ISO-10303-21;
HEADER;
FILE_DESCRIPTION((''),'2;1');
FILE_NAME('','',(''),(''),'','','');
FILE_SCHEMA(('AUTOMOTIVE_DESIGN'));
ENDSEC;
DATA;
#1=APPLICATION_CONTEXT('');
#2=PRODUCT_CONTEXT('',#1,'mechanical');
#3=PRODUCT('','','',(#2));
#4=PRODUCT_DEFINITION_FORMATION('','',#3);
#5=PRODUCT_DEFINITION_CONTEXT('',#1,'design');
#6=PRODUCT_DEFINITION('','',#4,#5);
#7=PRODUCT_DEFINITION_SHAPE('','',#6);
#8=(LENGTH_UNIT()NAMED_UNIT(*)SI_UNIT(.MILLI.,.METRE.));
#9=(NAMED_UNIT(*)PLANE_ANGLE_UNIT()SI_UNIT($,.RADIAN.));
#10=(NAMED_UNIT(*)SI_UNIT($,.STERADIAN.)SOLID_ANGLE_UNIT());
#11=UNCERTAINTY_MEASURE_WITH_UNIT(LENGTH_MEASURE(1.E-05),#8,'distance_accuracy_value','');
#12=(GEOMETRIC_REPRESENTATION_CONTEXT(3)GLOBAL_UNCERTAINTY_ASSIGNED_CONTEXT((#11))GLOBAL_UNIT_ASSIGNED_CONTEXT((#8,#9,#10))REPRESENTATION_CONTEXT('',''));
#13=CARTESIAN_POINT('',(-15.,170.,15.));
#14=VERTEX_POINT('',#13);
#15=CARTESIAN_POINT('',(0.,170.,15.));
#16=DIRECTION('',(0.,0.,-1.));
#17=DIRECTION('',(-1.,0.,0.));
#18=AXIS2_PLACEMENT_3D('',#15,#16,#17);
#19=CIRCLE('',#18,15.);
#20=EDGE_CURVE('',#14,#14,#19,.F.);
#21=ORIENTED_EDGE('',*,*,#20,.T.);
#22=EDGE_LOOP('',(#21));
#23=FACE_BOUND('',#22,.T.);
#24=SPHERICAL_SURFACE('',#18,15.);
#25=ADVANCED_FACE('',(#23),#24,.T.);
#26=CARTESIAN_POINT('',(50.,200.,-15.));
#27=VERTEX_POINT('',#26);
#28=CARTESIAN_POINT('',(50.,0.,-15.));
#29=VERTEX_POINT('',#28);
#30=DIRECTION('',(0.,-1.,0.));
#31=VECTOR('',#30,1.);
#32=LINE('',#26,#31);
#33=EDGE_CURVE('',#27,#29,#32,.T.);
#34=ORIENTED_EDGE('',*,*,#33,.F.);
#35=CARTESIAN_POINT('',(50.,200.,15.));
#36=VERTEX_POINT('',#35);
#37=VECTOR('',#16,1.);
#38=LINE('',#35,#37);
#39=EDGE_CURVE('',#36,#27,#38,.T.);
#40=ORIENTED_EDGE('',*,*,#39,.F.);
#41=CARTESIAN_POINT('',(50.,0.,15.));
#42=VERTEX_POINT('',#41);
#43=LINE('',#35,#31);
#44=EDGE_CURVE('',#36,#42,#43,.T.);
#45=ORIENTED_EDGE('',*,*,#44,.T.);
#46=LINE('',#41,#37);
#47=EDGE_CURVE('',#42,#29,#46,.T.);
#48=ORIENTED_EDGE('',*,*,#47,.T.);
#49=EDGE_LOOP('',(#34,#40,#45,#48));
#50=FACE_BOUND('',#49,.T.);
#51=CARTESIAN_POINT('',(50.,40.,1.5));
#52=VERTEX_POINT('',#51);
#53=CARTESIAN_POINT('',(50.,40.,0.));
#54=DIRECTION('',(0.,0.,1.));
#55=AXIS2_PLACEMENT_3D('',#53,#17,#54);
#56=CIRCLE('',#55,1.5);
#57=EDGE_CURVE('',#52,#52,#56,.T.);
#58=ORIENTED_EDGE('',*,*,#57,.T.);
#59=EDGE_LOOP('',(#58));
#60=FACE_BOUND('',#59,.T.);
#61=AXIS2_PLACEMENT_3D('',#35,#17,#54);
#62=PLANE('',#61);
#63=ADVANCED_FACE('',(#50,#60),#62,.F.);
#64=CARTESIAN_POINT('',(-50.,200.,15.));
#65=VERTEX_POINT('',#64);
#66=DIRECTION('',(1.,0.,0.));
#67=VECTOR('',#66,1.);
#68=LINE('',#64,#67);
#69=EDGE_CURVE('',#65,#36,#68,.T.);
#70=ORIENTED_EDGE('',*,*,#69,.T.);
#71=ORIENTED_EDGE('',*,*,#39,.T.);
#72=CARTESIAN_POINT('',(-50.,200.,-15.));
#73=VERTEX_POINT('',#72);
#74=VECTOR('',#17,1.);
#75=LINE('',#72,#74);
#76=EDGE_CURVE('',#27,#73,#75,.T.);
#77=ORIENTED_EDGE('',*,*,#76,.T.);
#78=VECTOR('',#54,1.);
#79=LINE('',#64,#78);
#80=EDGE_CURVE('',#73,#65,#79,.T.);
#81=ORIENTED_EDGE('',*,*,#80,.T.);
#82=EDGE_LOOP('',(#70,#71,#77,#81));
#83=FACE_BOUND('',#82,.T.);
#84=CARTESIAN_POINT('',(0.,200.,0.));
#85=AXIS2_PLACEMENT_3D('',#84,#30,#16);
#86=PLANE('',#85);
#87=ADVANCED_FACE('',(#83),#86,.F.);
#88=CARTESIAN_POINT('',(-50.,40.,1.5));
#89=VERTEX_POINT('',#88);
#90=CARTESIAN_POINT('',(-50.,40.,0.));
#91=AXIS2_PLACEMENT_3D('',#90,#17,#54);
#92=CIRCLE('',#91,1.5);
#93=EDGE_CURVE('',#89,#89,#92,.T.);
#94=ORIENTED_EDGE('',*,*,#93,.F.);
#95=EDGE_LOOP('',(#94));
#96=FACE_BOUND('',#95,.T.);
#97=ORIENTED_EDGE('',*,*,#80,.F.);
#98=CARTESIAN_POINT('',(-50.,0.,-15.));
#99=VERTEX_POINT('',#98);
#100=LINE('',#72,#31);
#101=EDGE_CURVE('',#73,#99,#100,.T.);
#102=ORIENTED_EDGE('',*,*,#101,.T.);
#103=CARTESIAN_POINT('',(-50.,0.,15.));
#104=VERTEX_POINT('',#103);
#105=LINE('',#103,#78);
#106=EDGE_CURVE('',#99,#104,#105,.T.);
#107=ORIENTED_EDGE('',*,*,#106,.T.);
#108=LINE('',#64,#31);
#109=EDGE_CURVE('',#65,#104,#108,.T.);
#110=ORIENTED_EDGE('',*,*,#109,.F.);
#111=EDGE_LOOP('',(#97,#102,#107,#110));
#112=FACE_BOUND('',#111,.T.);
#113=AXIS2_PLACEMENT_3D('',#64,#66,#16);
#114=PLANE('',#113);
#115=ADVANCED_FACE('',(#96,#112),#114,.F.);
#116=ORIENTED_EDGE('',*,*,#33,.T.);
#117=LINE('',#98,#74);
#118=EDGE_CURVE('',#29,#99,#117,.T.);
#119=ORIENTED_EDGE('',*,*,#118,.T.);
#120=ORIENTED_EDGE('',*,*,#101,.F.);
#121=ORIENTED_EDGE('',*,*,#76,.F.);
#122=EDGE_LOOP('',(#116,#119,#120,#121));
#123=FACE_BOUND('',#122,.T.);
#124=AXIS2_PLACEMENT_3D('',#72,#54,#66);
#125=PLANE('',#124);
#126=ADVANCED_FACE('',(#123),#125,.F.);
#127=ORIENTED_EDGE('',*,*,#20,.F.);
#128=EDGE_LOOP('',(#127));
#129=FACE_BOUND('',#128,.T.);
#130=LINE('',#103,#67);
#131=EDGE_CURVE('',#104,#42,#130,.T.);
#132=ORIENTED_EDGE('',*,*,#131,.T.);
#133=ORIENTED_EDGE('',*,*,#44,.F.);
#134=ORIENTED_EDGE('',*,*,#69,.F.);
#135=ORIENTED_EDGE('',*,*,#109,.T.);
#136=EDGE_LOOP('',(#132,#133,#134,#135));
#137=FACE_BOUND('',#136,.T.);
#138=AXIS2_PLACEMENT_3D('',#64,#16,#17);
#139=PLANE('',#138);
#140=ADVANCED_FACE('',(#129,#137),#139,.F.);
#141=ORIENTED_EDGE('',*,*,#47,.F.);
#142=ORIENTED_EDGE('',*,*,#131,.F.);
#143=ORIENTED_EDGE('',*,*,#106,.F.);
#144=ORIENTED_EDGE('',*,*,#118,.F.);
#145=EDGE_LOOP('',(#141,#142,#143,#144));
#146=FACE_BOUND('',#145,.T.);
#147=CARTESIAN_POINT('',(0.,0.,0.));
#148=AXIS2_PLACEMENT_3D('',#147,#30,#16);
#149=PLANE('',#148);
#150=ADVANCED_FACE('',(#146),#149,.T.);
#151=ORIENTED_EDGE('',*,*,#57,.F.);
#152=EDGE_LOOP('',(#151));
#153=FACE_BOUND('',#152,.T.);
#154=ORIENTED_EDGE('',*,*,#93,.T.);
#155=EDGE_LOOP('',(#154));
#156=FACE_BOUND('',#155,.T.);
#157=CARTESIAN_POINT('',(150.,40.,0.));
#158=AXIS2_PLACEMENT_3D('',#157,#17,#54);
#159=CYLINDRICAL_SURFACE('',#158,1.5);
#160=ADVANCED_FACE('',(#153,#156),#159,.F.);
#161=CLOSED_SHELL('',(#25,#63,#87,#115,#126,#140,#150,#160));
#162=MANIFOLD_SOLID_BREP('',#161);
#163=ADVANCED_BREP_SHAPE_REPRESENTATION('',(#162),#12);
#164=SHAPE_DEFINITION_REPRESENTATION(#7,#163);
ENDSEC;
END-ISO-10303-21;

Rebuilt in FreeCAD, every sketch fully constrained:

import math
import FreeCAD as App
import Part
import Sketcher

V = App.Vector
Q = App.Units.Quantity


def add_polygon(sketch, points):
    """Adds a closed chain of lines whose ends are joined by coincident constraints."""
    first, n = sketch.GeometryCount, len(points)
    for a, b in zip(points, points[1:] + points[:1]):
        sketch.addGeometry(Part.LineSegment(App.Vector(*a, 0), App.Vector(*b, 0)), False)
    for i in range(n):
        sketch.addConstraint(Sketcher.Constraint("Coincident", first + i, 2, first + (i + 1) % n, 1))

doc = App.newDocument("Part")
body = doc.addObject("PartDesign::Body", "Body")

# Sketch on XZ plane
sketch1 = doc.addObject("Sketcher::SketchObject", "Sketch")
body.addObject(sketch1)
sketch1.AttachmentSupport = (doc.XZ_Plane, [""])
sketch1.MapMode = "FlatFace"
add_polygon(sketch1, [(-50, -15), (-50, 15), (50, 15), (50, -15)])  # lines 0-3
sketch1.addConstraint(Sketcher.Constraint("Vertical", 0))
sketch1.addConstraint(Sketcher.Constraint("Horizontal", 1))
sketch1.addConstraint(Sketcher.Constraint("Vertical", 2))
sketch1.addConstraint(Sketcher.Constraint("Horizontal", 3))
sketch1.addConstraint(Sketcher.Constraint("Symmetric", 0, 2, 2, 2, -1, 1))
sketch1.addConstraint(Sketcher.Constraint("DistanceX", 1, 1, 1, 2, Q("100 mm")))
sketch1.addConstraint(Sketcher.Constraint("DistanceY", 0, 1, 0, 2, Q("30 mm")))
pad1 = doc.addObject("PartDesign::Pad", "Pad")
body.addObject(pad1)
pad1.Profile = sketch1
pad1.Length = 200
pad1.Reversed = True

# Sketch on XY plane
sketch2 = doc.addObject("Sketcher::SketchObject", "Sketch001")
body.addObject(sketch2)
sketch2.AttachmentSupport = (doc.XY_Plane, [""])
sketch2.MapMode = "FlatFace"
sketch2.AttachmentOffset = App.Placement(V(0, 0, 15), App.Rotation())
sketch2.addGeometry(Part.LineSegment(V(-15, 170, 0), V(15, 170, 0)), False)
sketch2.addGeometry(Part.ArcOfCircle(Part.Circle(V(0, 170, 0), V(0, 0, 1), 15), math.radians(0), math.radians(180)), False)
sketch2.addGeometry(Part.LineSegment(V(-15, 170, 0), V(15, 170, 0)), True)  # axis
sketch2.addConstraint(Sketcher.Constraint("Coincident", 0, 1, 1, 2))
sketch2.addConstraint(Sketcher.Constraint("Coincident", 1, 1, 0, 2))
sketch2.addConstraint(Sketcher.Constraint("Horizontal", 0))
sketch2.addConstraint(Sketcher.Constraint("Horizontal", 2))
sketch2.addConstraint(Sketcher.Constraint("Coincident", 2, 1, 0, 1))
sketch2.addConstraint(Sketcher.Constraint("PointOnObject", 1, 3, -2))
sketch2.addConstraint(Sketcher.Constraint("Horizontal", 1, 3, 0, 1))
sketch2.addConstraint(Sketcher.Constraint("Equal", 0, 2))
sketch2.addConstraint(Sketcher.Constraint("Radius", 1, Q("15 mm")))
sketch2.addConstraint(Sketcher.Constraint("DistanceY", -1, 1, 1, 3, Q("170 mm")))
revolution = doc.addObject("PartDesign::Revolution", "Revolution")
body.addObject(revolution)
revolution.Profile = sketch2
revolution.ReferenceAxis = (sketch2, ["Axis0"])
revolution.Angle = 360

# Sketch on YZ plane
sketch3 = doc.addObject("Sketcher::SketchObject", "Sketch002")
body.addObject(sketch3)
sketch3.AttachmentSupport = (doc.YZ_Plane, [""])
sketch3.MapMode = "FlatFace"
sketch3.AttachmentOffset = App.Placement(V(0, 0, -50), App.Rotation())
sketch3.addGeometry(Part.Circle(V(40, 0, 0), V(0, 0, 1), 1.5), False)
sketch3.addConstraint(Sketcher.Constraint("PointOnObject", 0, 3, -1))
sketch3.addConstraint(Sketcher.Constraint("Diameter", 0, Q("3 mm")))
sketch3.addConstraint(Sketcher.Constraint("DistanceX", -1, 1, 0, 3, Q("40 mm")))
pocket1 = doc.addObject("PartDesign::Pocket", "Pocket")
body.addObject(pocket1)
pocket1.Profile = sketch3
pocket1.Length = 200
pocket1.Reversed = True

doc.recompute()
